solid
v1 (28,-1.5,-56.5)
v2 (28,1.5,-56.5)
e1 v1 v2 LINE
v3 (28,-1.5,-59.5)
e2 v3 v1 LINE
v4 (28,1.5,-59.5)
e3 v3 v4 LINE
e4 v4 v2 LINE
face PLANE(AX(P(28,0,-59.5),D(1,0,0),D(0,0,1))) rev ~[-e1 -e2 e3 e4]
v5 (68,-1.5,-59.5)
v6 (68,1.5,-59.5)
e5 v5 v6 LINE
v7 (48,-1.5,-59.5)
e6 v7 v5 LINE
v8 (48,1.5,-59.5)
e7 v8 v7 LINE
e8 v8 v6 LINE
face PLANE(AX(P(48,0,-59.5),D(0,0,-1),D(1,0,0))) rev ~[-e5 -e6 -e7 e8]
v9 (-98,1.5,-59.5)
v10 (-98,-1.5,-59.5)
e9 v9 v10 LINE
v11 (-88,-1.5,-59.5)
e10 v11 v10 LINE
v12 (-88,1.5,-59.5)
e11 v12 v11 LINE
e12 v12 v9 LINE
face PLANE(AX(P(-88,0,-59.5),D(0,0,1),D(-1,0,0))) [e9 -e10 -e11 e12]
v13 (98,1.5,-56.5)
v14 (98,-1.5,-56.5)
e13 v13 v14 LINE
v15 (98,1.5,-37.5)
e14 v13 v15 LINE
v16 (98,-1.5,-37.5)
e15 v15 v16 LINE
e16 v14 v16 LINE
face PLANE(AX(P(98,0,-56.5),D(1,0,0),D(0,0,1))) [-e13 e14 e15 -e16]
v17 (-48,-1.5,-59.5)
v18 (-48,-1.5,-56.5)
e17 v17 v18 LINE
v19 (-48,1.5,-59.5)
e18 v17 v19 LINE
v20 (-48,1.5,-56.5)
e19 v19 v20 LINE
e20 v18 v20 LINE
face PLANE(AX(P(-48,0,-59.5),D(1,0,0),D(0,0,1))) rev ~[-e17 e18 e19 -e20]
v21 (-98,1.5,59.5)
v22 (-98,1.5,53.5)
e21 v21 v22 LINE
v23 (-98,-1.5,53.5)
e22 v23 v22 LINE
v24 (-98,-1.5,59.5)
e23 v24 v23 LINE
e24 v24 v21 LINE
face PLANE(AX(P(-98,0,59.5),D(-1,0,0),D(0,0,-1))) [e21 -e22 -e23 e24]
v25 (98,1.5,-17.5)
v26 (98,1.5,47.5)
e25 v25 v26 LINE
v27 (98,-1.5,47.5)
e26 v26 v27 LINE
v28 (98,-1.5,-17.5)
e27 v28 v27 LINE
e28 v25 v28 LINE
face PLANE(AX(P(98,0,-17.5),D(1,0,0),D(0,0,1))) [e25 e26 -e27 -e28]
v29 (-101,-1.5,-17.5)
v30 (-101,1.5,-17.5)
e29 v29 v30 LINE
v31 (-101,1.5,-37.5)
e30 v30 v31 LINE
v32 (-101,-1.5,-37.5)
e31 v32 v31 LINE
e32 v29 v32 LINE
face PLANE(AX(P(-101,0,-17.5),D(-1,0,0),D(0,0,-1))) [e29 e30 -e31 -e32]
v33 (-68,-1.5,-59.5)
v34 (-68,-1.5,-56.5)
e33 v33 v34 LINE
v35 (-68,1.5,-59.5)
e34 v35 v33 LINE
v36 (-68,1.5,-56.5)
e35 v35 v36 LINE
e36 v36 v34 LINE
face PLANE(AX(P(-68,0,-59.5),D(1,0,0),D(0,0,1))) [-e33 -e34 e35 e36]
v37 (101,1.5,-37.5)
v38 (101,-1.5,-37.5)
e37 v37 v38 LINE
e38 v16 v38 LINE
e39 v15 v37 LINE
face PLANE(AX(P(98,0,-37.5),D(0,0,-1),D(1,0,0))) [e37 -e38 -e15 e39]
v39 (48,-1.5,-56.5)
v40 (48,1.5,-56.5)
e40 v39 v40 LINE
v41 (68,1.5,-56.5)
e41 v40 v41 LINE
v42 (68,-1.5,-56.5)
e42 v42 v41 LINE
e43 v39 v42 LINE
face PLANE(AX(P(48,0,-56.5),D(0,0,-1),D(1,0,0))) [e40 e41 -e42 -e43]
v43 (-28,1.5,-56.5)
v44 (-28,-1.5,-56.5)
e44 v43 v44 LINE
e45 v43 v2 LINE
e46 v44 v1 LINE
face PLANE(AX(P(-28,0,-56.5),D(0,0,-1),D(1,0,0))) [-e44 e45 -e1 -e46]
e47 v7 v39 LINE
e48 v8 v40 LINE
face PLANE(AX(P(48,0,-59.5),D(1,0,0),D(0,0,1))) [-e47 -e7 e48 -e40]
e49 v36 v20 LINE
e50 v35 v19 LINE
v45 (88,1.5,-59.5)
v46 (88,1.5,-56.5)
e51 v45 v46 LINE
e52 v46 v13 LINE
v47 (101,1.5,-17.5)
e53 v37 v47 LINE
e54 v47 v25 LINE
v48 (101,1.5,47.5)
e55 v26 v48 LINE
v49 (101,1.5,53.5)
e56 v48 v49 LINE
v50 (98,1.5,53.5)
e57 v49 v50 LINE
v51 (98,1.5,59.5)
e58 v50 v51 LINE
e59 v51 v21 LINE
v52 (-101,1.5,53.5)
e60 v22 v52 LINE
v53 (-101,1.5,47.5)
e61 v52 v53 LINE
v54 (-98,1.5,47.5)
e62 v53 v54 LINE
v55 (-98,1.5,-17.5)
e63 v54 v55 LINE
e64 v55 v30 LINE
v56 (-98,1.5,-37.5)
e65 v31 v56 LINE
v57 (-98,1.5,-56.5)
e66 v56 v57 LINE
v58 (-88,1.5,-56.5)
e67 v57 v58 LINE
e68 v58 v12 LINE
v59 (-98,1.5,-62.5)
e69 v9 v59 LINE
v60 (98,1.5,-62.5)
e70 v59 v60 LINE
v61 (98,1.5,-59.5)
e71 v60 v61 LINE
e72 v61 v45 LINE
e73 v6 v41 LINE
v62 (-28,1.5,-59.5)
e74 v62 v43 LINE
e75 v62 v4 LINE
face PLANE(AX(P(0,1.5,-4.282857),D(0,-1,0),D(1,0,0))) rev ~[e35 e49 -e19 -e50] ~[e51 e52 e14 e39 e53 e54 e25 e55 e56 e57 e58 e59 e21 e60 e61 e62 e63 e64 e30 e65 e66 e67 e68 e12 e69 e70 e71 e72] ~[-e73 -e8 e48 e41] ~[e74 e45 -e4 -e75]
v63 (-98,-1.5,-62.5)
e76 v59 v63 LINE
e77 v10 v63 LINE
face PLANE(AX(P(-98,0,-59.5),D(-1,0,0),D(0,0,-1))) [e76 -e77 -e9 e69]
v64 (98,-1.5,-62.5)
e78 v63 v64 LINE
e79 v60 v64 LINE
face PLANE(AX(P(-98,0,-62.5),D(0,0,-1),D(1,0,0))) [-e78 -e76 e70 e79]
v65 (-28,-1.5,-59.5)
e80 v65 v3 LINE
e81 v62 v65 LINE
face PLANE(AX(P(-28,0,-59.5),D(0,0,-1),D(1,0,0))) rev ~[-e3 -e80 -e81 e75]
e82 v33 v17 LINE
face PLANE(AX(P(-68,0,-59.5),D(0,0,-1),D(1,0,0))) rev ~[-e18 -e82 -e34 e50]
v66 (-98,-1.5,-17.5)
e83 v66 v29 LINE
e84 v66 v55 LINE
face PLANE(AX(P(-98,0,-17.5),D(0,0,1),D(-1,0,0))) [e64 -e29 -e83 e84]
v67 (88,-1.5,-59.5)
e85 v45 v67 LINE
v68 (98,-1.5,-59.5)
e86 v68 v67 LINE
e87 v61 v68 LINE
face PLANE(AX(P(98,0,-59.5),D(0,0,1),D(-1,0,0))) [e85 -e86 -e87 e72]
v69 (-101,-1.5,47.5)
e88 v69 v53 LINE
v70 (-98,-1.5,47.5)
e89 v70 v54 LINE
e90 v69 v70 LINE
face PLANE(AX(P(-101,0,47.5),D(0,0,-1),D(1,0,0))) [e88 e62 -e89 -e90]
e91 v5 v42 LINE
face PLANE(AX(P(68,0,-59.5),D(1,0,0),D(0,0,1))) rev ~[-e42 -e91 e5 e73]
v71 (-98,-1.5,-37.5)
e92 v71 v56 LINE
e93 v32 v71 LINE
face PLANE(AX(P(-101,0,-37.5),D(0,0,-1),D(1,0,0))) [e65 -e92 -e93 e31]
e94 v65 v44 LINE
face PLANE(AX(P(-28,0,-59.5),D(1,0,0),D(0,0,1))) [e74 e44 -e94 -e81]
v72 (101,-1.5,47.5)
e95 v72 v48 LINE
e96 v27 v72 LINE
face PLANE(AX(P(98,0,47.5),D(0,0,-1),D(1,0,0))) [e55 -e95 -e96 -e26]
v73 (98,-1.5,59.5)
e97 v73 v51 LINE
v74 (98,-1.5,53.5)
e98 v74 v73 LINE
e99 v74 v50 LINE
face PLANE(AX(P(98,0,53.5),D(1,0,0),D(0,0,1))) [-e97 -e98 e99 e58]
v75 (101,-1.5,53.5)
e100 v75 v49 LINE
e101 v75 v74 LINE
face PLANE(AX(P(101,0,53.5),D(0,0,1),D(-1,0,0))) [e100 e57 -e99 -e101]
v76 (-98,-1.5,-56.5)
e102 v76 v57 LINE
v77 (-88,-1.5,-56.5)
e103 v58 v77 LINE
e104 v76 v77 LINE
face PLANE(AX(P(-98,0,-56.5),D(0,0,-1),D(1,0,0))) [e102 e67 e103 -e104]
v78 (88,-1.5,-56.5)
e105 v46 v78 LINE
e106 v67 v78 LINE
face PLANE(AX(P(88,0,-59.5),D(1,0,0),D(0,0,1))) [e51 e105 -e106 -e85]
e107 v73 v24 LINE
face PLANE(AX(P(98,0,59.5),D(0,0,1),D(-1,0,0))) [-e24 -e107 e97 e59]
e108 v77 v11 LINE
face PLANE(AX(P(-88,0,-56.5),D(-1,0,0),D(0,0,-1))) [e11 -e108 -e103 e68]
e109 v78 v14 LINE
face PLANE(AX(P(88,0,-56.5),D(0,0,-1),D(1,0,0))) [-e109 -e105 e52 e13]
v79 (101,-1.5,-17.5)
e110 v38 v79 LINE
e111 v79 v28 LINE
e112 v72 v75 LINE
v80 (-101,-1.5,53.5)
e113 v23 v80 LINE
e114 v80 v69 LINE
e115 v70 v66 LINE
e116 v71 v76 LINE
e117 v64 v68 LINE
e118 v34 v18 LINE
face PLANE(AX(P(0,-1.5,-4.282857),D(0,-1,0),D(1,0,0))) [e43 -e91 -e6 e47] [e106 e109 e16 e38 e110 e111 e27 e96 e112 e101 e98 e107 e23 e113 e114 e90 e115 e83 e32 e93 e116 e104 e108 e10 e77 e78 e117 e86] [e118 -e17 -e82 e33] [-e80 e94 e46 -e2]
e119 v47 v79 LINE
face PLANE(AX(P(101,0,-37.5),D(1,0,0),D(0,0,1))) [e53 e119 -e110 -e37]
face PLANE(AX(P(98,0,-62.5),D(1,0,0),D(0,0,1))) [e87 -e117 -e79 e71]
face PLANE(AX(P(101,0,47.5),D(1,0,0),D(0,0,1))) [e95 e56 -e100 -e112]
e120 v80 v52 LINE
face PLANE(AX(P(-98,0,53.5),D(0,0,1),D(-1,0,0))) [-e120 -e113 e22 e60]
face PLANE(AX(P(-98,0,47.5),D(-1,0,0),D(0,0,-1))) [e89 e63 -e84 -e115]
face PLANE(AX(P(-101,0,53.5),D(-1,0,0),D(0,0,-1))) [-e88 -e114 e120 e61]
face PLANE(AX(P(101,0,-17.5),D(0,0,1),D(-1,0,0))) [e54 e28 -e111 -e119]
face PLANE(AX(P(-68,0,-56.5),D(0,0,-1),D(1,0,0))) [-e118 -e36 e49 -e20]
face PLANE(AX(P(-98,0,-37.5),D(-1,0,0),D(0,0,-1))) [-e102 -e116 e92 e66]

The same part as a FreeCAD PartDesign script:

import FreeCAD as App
import Part
import Sketcher
from FreeCAD import Vector
Q = App.Units.Quantity


def add_polygon(sketch, points):
    """Adds a closed chain of lines whose ends are joined by coincident constraints."""
    first, n = sketch.GeometryCount, len(points)
    for a, b in zip(points, points[1:] + points[:1]):
        sketch.addGeometry(Part.LineSegment(App.Vector(*a, 0), App.Vector(*b, 0)), False)
    for i in range(n):
        sketch.addConstraint(Sketcher.Constraint("Coincident", first + i, 2, first + (i + 1) % n, 1))

doc = App.newDocument("Part")
body = doc.addObject("PartDesign::Body", "Body")

# Sketch on XZ plane
sketch1 = body.newObject("Sketcher::SketchObject", "Sketch")
sketch1.AttachmentSupport = (doc.getObject("XZ_Plane"), [""])
sketch1.MapMode = "FlatFace"
add_polygon(sketch1, [(-98, -56.5), (-88, -56.5), (-88, -59.5), (-98, -59.5), (-98, -62.5), (98, -62.5), (98, -59.5), (88, -59.5), (88, -56.5), (98, -56.5), (98, -37.5), (101, -37.5), (101, -17.5), (98, -17.5), (98, 47.5), (101, 47.5), (101, 53.5), (98, 53.5), (98, 59.5), (-98, 59.5), (-98, 53.5), (-101, 53.5), (-101, 47.5), (-98, 47.5), (-98, -17.5), (-101, -17.5), (-101, -37.5), (-98, -37.5)])  # lines 0-27
add_polygon(sketch1, [(-48, -59.5), (-68, -59.5), (-68, -56.5), (-48, -56.5)])  # lines 28-31
add_polygon(sketch1, [(28, -59.5), (-28, -59.5), (-28, -56.5), (28, -56.5)])  # lines 32-35
add_polygon(sketch1, [(68, -59.5), (48, -59.5), (48, -56.5), (68, -56.5)])  # lines 36-39
sketch1.addConstraint([
    Sketcher.Constraint("Horizontal", 0),
    Sketcher.Constraint("Vertical", 1),
    Sketcher.Constraint("Horizontal", 2),
    Sketcher.Constraint("Vertical", 3),
    Sketcher.Constraint("Horizontal", 4),
    Sketcher.Constraint("Vertical", 5),
    Sketcher.Constraint("Horizontal", 6),
    Sketcher.Constraint("Vertical", 7),
    Sketcher.Constraint("Horizontal", 8),
    Sketcher.Constraint("Vertical", 9),
    Sketcher.Constraint("Horizontal", 10),
    Sketcher.Constraint("Vertical", 11),
    Sketcher.Constraint("Horizontal", 12),
    Sketcher.Constraint("Vertical", 13),
    Sketcher.Constraint("Horizontal", 14),
    Sketcher.Constraint("Vertical", 15),
    Sketcher.Constraint("Horizontal", 16),
    Sketcher.Constraint("Vertical", 17),
    Sketcher.Constraint("Horizontal", 18),
    Sketcher.Constraint("Vertical", 19),
    Sketcher.Constraint("Horizontal", 20),
    Sketcher.Constraint("Vertical", 21),
    Sketcher.Constraint("Horizontal", 22),
    Sketcher.Constraint("Vertical", 23),
    Sketcher.Constraint("Horizontal", 24),
    Sketcher.Constraint("Vertical", 25),
    Sketcher.Constraint("Horizontal", 26),
    Sketcher.Constraint("Vertical", 27),
    Sketcher.Constraint("Horizontal", 28),
    Sketcher.Constraint("Vertical", 29),
    Sketcher.Constraint("Horizontal", 30),
    Sketcher.Constraint("Vertical", 31),
    Sketcher.Constraint("Horizontal", 32),
    Sketcher.Constraint("Vertical", 33),
    Sketcher.Constraint("Horizontal", 34),
    Sketcher.Constraint("Vertical", 35),
    Sketcher.Constraint("Horizontal", 36),
    Sketcher.Constraint("Vertical", 37),
    Sketcher.Constraint("Horizontal", 38),
    Sketcher.Constraint("Vertical", 39),
    Sketcher.Constraint("Symmetric", 2, 2, 17, 2, -1, 1),
    Sketcher.Constraint("Symmetric", 5, 2, 18, 2, -1, 1),
    Sketcher.Constraint("Symmetric", 0, 2, 7, 2, -2),
    Sketcher.Constraint("Symmetric", 16, 2, 19, 2, -2),
    Sketcher.Constraint("Symmetric", 14, 2, 21, 2, -2),
    Sketcher.Constraint("Symmetric", 12, 2, 23, 2, -2),
    Sketcher.Constraint("Symmetric", 10, 2, 25, 2, -2),
    Sketcher.Constraint("Symmetric", 31, 2, 36, 2, -2),
    Sketcher.Constraint("Symmetric", 29, 2, 38, 2, -2),
    Sketcher.Constraint("Horizontal", 6, 2, 28, 2),
    Sketcher.Constraint("Horizontal", 27, 2, 29, 2),
    Sketcher.Constraint("Horizontal", 31, 2, 32, 2),
    Sketcher.Constraint("Horizontal", 30, 2, 33, 2),
    Sketcher.Constraint("Vertical", 5, 2, 8, 2),
    Sketcher.Constraint("Vertical", 9, 2, 12, 2),
    Sketcher.Constraint("Vertical", 11, 2, 14, 2),
    Sketcher.Constraint("Vertical", 23, 2, 26, 2),
    Sketcher.Constraint("Equal", 26, 1),
    Sketcher.Constraint("Equal", 1, 3),
    Sketcher.Constraint("Equal", 38, 11),
    Sketcher.Constraint("Equal", 15, 17),
    Sketcher.Constraint("DistanceX", 0, 1, 0, 2, Q("10 mm")),
    Sketcher.Constraint("DistanceX", 4, 1, 4, 2, Q("196 mm")),
    Sketcher.Constraint("DistanceX", 10, 1, 10, 2, Q("3 mm")),
    Sketcher.Constraint("DistanceX", 28, 2, 28, 1, Q("20 mm")),
    Sketcher.Constraint("DistanceX", 32, 2, 32, 1, Q("56 mm")),
    Sketcher.Constraint("DistanceY", 9, 1, 9, 2, Q("19 mm")),
    Sketcher.Constraint("DistanceY", 13, 1, 13, 2, Q("65 mm")),
    Sketcher.Constraint("DistanceY", 15, 1, 15, 2, Q("6 mm")),
    Sketcher.Constraint("DistanceX", 28, 2, -1, 1, Q("68 mm")),
    Sketcher.Constraint("DistanceX", 32, 2, -1, 1, Q("28 mm")),
])
pad1 = body.newObject("PartDesign::Pad", "Pad")
pad1.Profile = sketch1
pad1.Length = 3
pad1.Midplane = True

doc.recompute()
